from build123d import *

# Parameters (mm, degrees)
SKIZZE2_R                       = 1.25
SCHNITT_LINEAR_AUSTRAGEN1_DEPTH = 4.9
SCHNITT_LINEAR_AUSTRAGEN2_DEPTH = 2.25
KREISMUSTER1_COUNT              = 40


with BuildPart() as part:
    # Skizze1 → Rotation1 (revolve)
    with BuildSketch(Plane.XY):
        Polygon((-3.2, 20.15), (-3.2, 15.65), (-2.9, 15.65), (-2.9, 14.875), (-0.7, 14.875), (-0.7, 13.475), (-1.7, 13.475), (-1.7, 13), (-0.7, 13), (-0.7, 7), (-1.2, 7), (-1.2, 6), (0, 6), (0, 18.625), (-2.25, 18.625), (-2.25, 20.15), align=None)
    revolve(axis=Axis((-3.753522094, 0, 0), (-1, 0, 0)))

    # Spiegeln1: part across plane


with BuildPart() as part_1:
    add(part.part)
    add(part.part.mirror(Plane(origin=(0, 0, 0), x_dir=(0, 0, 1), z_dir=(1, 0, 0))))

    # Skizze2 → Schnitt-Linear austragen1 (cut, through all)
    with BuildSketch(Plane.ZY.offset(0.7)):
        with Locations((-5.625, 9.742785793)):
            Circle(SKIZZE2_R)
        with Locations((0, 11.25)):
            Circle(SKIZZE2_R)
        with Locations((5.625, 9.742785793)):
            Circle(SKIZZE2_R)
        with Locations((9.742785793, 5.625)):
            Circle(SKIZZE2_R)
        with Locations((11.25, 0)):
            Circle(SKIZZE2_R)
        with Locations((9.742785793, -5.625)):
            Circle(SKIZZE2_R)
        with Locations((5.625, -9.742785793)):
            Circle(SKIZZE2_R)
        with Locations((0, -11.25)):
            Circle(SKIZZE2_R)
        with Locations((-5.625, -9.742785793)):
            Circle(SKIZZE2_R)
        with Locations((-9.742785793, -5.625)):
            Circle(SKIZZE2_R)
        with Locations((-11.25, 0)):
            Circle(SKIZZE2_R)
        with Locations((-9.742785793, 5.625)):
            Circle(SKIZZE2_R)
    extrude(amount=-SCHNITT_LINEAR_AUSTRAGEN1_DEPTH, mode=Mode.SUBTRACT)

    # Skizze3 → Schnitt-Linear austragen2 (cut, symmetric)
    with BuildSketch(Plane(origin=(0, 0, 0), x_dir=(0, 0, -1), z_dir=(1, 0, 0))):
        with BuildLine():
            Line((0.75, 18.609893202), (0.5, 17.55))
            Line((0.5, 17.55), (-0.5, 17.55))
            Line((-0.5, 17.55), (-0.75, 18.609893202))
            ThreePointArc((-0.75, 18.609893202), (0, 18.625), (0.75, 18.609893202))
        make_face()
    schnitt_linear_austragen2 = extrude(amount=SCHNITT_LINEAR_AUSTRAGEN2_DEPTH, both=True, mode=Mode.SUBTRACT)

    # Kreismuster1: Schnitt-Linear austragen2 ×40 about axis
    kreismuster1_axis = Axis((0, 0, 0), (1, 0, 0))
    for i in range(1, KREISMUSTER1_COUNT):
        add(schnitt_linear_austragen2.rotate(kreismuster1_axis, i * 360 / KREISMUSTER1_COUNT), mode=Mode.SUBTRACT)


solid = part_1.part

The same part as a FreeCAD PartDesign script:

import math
import FreeCAD as App
import Part
import Sketcher

doc = App.newDocument("Part")
params = doc.addObject("Spreadsheet::Sheet", "Params")
for row, (alias, value) in enumerate([
    ("sketch1_width", "1 mm"),
    ("sketch1_height", "6 mm"),
    ("sketch1_width2", "0.3 mm"),
    ("sketch1_width3", "2.2 mm"),
    ("sketch1_width4", "0.5 mm"),
    ("revolution_angle", "360 deg"),
    ("sketch2_diameter", "2.5 mm"),
    ("sketch3_height", "1 mm"),
    ("pocket2_length", "4.5 mm"),
], start=1):
    params.set(f"A{row}", alias)
    params.set(f"B{row}", "=" + value)
    params.setAlias(f"B{row}", alias)

body = doc.addObject("PartDesign::Body", "Body")

sketch1 = doc.addObject("Sketcher::SketchObject", "Sketch")
body.addObject(sketch1)
sketch1.AttachmentSupport = (doc.XY_Plane, [""])
sketch1.MapMode = "FlatFace"
sketch1.addGeometry(Part.LineSegment(App.Vector(-3.2, 20.15, 0), App.Vector(-3.2, 15.65, 0)), False)
sketch1.addGeometry(Part.LineSegment(App.Vector(-3.2, 15.65, 0), App.Vector(-2.9, 15.65, 0)), False)
sketch1.addGeometry(Part.LineSegment(App.Vector(-2.9, 15.65, 0), App.Vector(-2.9, 14.88, 0)), False)
sketch1.addGeometry(Part.LineSegment(App.Vector(-2.9, 14.88, 0), App.Vector(-0.7, 14.88, 0)), False)
sketch1.addGeometry(Part.LineSegment(App.Vector(-0.7, 14.88, 0), App.Vector(-0.7, 13.47, 0)), False)
sketch1.addGeometry(Part.LineSegment(App.Vector(-0.7, 13.47, 0), App.Vector(-1.7, 13.47, 0)), False)
sketch1.addGeometry(Part.LineSegment(App.Vector(-1.7, 13.47, 0), App.Vector(-1.7, 13, 0)), False)
sketch1.addGeometry(Part.LineSegment(App.Vector(-1.7, 13, 0), App.Vector(-0.7, 13, 0)), False)
sketch1.addGeometry(Part.LineSegment(App.Vector(-0.7, 13, 0), App.Vector(-0.7, 7, 0)), False)
sketch1.addGeometry(Part.LineSegment(App.Vector(-0.7, 7, 0), App.Vector(-1.2, 7, 0)), False)
sketch1.addGeometry(Part.LineSegment(App.Vector(-1.2, 7, 0), App.Vector(-1.2, 6, 0)), False)
sketch1.addGeometry(Part.LineSegment(App.Vector(-1.2, 6, 0), App.Vector(0, 6, 0)), False)
sketch1.addGeometry(Part.LineSegment(App.Vector(0, 6, 0), App.Vector(0, 18.62, 0)), False)
sketch1.addGeometry(Part.LineSegment(App.Vector(0, 18.62, 0), App.Vector(-2.25, 18.62, 0)), False)
sketch1.addGeometry(Part.LineSegment(App.Vector(-2.25, 18.62, 0), App.Vector(-2.25, 20.15, 0)), False)
sketch1.addGeometry(Part.LineSegment(App.Vector(-2.25, 20.15, 0), App.Vector(-3.2, 20.15, 0)), False)
sketch1.addConstraint(Sketcher.Constraint("Coincident", 0, 2, 1, 1))
sketch1.addConstraint(Sketcher.Constraint("Coincident", 1, 2, 2, 1))
sketch1.addConstraint(Sketcher.Constraint("Coincident", 2, 2, 3, 1))
sketch1.addConstraint(Sketcher.Constraint("Coincident", 3, 2, 4, 1))
sketch1.addConstraint(Sketcher.Constraint("Coincident", 4, 2, 5, 1))
sketch1.addConstraint(Sketcher.Constraint("Coincident", 5, 2, 6, 1))
sketch1.addConstraint(Sketcher.Constraint("Coincident", 6, 2, 7, 1))
sketch1.addConstraint(Sketcher.Constraint("Coincident", 7, 2, 8, 1))
sketch1.addConstraint(Sketcher.Constraint("Coincident", 8, 2, 9, 1))
sketch1.addConstraint(Sketcher.Constraint("Coincident", 9, 2, 10, 1))
sketch1.addConstraint(Sketcher.Constraint("Coincident", 10, 2, 11, 1))
sketch1.addConstraint(Sketcher.Constraint("Coincident", 11, 2, 12, 1))
sketch1.addConstraint(Sketcher.Constraint("Coincident", 12, 2, 13, 1))
sketch1.addConstraint(Sketcher.Constraint("Coincident", 13, 2, 14, 1))
sketch1.addConstraint(Sketcher.Constraint("Coincident", 14, 2, 15, 1))
sketch1.addConstraint(Sketcher.Constraint("Coincident", 15, 2, 0, 1))
sketch1.addConstraint(Sketcher.Constraint("Vertical", 0))
sketch1.addConstraint(Sketcher.Constraint("Horizontal", 1))
sketch1.addConstraint(Sketcher.Constraint("Vertical", 2))
sketch1.addConstraint(Sketcher.Constraint("Horizontal", 3))
sketch1.addConstraint(Sketcher.Constraint("Vertical", 4))
sketch1.addConstraint(Sketcher.Constraint("Horizontal", 5))
sketch1.addConstraint(Sketcher.Constraint("Vertical", 6))
sketch1.addConstraint(Sketcher.Constraint("Horizontal", 7))
sketch1.addConstraint(Sketcher.Constraint("Vertical", 8))
sketch1.addConstraint(Sketcher.Constraint("Horizontal", 9))
sketch1.addConstraint(Sketcher.Constraint("Vertical", 10))
sketch1.addConstraint(Sketcher.Constraint("Horizontal", 11))
sketch1.addConstraint(Sketcher.Constraint("Vertical", 12))
sketch1.addConstraint(Sketcher.Constraint("Horizontal", 13))
sketch1.addConstraint(Sketcher.Constraint("Vertical", 14))
sketch1.addConstraint(Sketcher.Constraint("Horizontal", 15))
sketch1.addConstraint(Sketcher.Constraint("PointOnObject", 11, 2, -2))
sketch1.addConstraint(Sketcher.Constraint("Vertical", 4, 2, 7, 2))
sketch1.addConstraint(Sketcher.Constraint("Equal", 7, 10))
sketch1.addConstraint(Sketcher.Constraint("DistanceX", 5, 2, 5, 1, 1.0))
sketch1.addConstraint(Sketcher.Constraint("DistanceY", 8, 2, 8, 1, 6.0))
sketch1.addConstraint(Sketcher.Constraint("DistanceX", 1, 1, 1, 2, 0.3))
sketch1.addConstraint(Sketcher.Constraint("DistanceX", 3, 1, 3, 2, 2.2))
sketch1.addConstraint(Sketcher.Constraint("DistanceX", 9, 2, 9, 1, 0.5))
sketch1.addConstraint(Sketcher.Constraint("DistanceX", 11, 1, 11, 2, 1.2))
sketch1.addConstraint(Sketcher.Constraint("DistanceY", 0, 2, 0, 1, 4.5))
sketch1.addConstraint(Sketcher.Constraint("DistanceY", 4, 2, 4, 1, 1.4))
sketch1.addConstraint(Sketcher.Constraint("DistanceY", -1, 1, 6, 2, 13.0))
sketch1.addConstraint(Sketcher.Constraint("DistanceX", 13, 2, 13, 1, 2.25))
sketch1.addConstraint(Sketcher.Constraint("DistanceY", 2, 2, 2, 1, 0.775))
sketch1.addConstraint(Sketcher.Constraint("DistanceY", 6, 2, 6, 1, 0.475))
sketch1.addConstraint(Sketcher.Constraint("DistanceY", 12, 1, 12, 2, 12.625))
sketch1.setExpression("Constraints[35]", "Params.sketch1_width")
sketch1.setExpression("Constraints[36]", "Params.sketch1_height")
sketch1.setExpression("Constraints[37]", "Params.sketch1_width2")
sketch1.setExpression("Constraints[38]", "Params.sketch1_width3")
sketch1.setExpression("Constraints[39]", "Params.sketch1_width4")
revolution = doc.addObject("PartDesign::Revolution", "Revolution")
body.addObject(revolution)
revolution.Profile = sketch1
revolution.ReferenceAxis = (sketch1, ["H_Axis"])
revolution.setExpression("Angle", "Params.revolution_angle")
body2 = doc.addObject("PartDesign::Body", "Body001")
doc.recompute()

body2.BaseFeature = body
doc.recompute()

mirroring = doc.addObject("Part::Mirroring", "Mirroring")
mirroring.Source = body
mirroring.Base = App.Vector(0, 0, 0)
mirroring.Normal = App.Vector(1, 0, 0)
body3 = doc.addObject("PartDesign::Body", "Body002")
body3.BaseFeature = mirroring
boolean = doc.addObject("PartDesign::Boolean", "Boolean")
body2.addObject(boolean)
boolean.Type = "Fuse"
boolean.addObjects([body3])
doc.recompute()

sketch2 = doc.addObject("Sketcher::SketchObject", "Sketch001")
body2.addObject(sketch2)
sketch2.AttachmentSupport = (doc.getObject("YZ_Plane001"), [""])
sketch2.MapMode = "FlatFace"
sketch2.AttachmentOffset = App.Placement(App.Vector(0, 0, -0.7), App.Rotation())
sketch2.addGeometry(Part.Circle(App.Vector(9.7, -5.6, 0), App.Vector(0, 0, 1), 1.2), False)
sketch2.addGeometry(Part.Circle(App.Vector(11.2, 0, 0), App.Vector(0, 0, 1), 1.2), False)
sketch2.addGeometry(Part.Circle(App.Vector(9.7, 5.6, 0), App.Vector(0, 0, 1), 1.2), False)
sketch2.addGeometry(Part.Circle(App.Vector(5.6, 9.7, 0), App.Vector(0, 0, 1), 1.2), False)
sketch2.addGeometry(Part.Circle(App.Vector(0, 11.2, 0), App.Vector(0, 0, 1), 1.2), False)
sketch2.addGeometry(Part.Circle(App.Vector(-5.6, 9.7, 0), App.Vector(0, 0, 1), 1.2), False)
sketch2.addGeometry(Part.Circle(App.Vector(-9.7, 5.6, 0), App.Vector(0, 0, 1), 1.2), False)
sketch2.addGeometry(Part.Circle(App.Vector(-11.2, 0, 0), App.Vector(0, 0, 1), 1.2), False)
sketch2.addGeometry(Part.Circle(App.Vector(-9.7, -5.6, 0), App.Vector(0, 0, 1), 1.2), False)
sketch2.addGeometry(Part.Circle(App.Vector(-5.6, -9.7, 0), App.Vector(0, 0, 1), 1.2), False)
sketch2.addGeometry(Part.Circle(App.Vector(0, -11.2, 0), App.Vector(0, 0, 1), 1.2), False)
sketch2.addGeometry(Part.Circle(App.Vector(5.6, -9.7, 0), App.Vector(0, 0, 1), 1.2), False)
sketch2.addConstraint(Sketcher.Constraint("Equal", 0, 1))
sketch2.addConstraint(Sketcher.Constraint("Equal", 1, 2))
sketch2.addConstraint(Sketcher.Constraint("Equal", 2, 3))
sketch2.addConstraint(Sketcher.Constraint("Equal", 3, 4))
sketch2.addConstraint(Sketcher.Constraint("Equal", 4, 5))
sketch2.addConstraint(Sketcher.Constraint("Equal", 5, 6))
sketch2.addConstraint(Sketcher.Constraint("Equal", 6, 7))
sketch2.addConstraint(Sketcher.Constraint("Equal", 7, 8))
sketch2.addConstraint(Sketcher.Constraint("Equal", 8, 9))
sketch2.addConstraint(Sketcher.Constraint("Equal", 9, 10))
sketch2.addConstraint(Sketcher.Constraint("Equal", 10, 11))
sketch2.addConstraint(Sketcher.Constraint("Symmetric", 0, 3, 6, 3, -1, 1))
sketch2.addConstraint(Sketcher.Constraint("Symmetric", 1, 3, 7, 3, -1, 1))
sketch2.addConstraint(Sketcher.Constraint("Symmetric", 2, 3, 8, 3, -1, 1))
sketch2.addConstraint(Sketcher.Constraint("Symmetric", 3, 3, 9, 3, -1, 1))
sketch2.addConstraint(Sketcher.Constraint("Symmetric", 4, 3, 10, 3, -1, 1))
sketch2.addConstraint(Sketcher.Constraint("Symmetric", 5, 3, 11, 3, -1, 1))
sketch2.addConstraint(Sketcher.Constraint("Symmetric", 3, 3, 5, 3, -2))
sketch2.addConstraint(Sketcher.Constraint("Symmetric", 2, 3, 6, 3, -2))
sketch2.addConstraint(Sketcher.Constraint("PointOnObject", 1, 3, -1))
sketch2.addConstraint(Sketcher.Constraint("PointOnObject", 4, 3, -2))
sketch2.addConstraint(Sketcher.Constraint("Diameter", 0, 2.5))
sketch2.addConstraint(Sketcher.Constraint("DistanceX", -1, 1, 1, 3, 11.25))
sketch2.addConstraint(Sketcher.Constraint("DistanceY", -1, 1, 4, 3, 11.25))
sketch2.addConstraint(Sketcher.Constraint("DistanceY", 0, 3, 2, 3, 11.25))
sketch2.addConstraint(Sketcher.Constraint("DistanceX", 5, 3, 3, 3, 11.25))
sketch2.addConstraint(Sketcher.Constraint("DistanceX", 6, 3, 2, 3, 19.485572))
sketch2.addConstraint(Sketcher.Constraint("DistanceY", -1, 1, 3, 3, 9.742786))
sketch2.setExpression("Constraints[21]", "Params.sketch2_diameter")
pocket1 = doc.addObject("PartDesign::Pocket", "Pocket")
body2.addObject(pocket1)
pocket1.Profile = sketch2
pocket1.Type = "ThroughAll"
pocket1.Reversed = True

sketch3 = doc.addObject("Sketcher::SketchObject", "Sketch002")
body2.addObject(sketch3)
sketch3.AttachmentSupport = (doc.getObject("YZ_Plane001"), [""])
sketch3.MapMode = "FlatFace"
sketch3.addGeometry(Part.LineSegment(App.Vector(17.6, -0.5, 0), App.Vector(18.6, -0.8, 0)), False)
sketch3.addGeometry(Part.ArcOfCircle(Part.Circle(App.Vector(0, 0, 0), App.Vector(0, 0, 1), 18.6), math.radians(-2.31), math.radians(2.31)), False)
sketch3.addGeometry(Part.LineSegment(App.Vector(18.6, 0.8, 0), App.Vector(17.6, 0.5, 0)), False)
sketch3.addGeometry(Part.LineSegment(App.Vector(17.6, 0.5, 0), App.Vector(17.6, -0.5, 0)), False)
sketch3.addConstraint(Sketcher.Constraint("Coincident", 0, 2, 1, 1))
sketch3.addConstraint(Sketcher.Constraint("Coincident", 1, 2, 2, 1))
sketch3.addConstraint(Sketcher.Constraint("Coincident", 2, 2, 3, 1))
sketch3.addConstraint(Sketcher.Constraint("Coincident", 3, 2, 0, 1))
sketch3.addConstraint(Sketcher.Constraint("Vertical", 3))
sketch3.addConstraint(Sketcher.Constraint("Coincident", 1, 3, -1, 1))
sketch3.addConstraint(Sketcher.Constraint("Vertical", 0, 2, 1, 2))
sketch3.addConstraint(Sketcher.Constraint("Equal", 0, 2))
sketch3.addConstraint(Sketcher.Constraint("DistanceY", 3, 2, 3, 1, 1.0))
sketch3.addConstraint(Sketcher.Constraint("Radius", 1, 18.625))
sketch3.addConstraint(Sketcher.Constraint("DistanceY", 0, 2, 1, 2, 1.5))
sketch3.addConstraint(Sketcher.Constraint("DistanceX", -1, 1, 2, 2, 17.55))
sketch3.setExpression("Constraints[8]", "Params.sketch3_height")
pocket2 = doc.addObject("PartDesign::Pocket", "Pocket001")
body2.addObject(pocket2)
pocket2.Profile = sketch3
pocket2.setExpression("Length", "Params.pocket2_length")
pocket2.Midplane = True
doc.recompute()

polarpattern = doc.addObject("PartDesign::PolarPattern", "PolarPattern")
body2.addObject(polarpattern)
polarpattern.Originals = [pocket2]
polarpattern.Axis = (doc.getObject("X_Axis001"), [""])
polarpattern.Angle = 360
polarpattern.Occurrences = 40
body2.Tip = polarpattern
mirroring.Visibility = False

doc.recompute()
